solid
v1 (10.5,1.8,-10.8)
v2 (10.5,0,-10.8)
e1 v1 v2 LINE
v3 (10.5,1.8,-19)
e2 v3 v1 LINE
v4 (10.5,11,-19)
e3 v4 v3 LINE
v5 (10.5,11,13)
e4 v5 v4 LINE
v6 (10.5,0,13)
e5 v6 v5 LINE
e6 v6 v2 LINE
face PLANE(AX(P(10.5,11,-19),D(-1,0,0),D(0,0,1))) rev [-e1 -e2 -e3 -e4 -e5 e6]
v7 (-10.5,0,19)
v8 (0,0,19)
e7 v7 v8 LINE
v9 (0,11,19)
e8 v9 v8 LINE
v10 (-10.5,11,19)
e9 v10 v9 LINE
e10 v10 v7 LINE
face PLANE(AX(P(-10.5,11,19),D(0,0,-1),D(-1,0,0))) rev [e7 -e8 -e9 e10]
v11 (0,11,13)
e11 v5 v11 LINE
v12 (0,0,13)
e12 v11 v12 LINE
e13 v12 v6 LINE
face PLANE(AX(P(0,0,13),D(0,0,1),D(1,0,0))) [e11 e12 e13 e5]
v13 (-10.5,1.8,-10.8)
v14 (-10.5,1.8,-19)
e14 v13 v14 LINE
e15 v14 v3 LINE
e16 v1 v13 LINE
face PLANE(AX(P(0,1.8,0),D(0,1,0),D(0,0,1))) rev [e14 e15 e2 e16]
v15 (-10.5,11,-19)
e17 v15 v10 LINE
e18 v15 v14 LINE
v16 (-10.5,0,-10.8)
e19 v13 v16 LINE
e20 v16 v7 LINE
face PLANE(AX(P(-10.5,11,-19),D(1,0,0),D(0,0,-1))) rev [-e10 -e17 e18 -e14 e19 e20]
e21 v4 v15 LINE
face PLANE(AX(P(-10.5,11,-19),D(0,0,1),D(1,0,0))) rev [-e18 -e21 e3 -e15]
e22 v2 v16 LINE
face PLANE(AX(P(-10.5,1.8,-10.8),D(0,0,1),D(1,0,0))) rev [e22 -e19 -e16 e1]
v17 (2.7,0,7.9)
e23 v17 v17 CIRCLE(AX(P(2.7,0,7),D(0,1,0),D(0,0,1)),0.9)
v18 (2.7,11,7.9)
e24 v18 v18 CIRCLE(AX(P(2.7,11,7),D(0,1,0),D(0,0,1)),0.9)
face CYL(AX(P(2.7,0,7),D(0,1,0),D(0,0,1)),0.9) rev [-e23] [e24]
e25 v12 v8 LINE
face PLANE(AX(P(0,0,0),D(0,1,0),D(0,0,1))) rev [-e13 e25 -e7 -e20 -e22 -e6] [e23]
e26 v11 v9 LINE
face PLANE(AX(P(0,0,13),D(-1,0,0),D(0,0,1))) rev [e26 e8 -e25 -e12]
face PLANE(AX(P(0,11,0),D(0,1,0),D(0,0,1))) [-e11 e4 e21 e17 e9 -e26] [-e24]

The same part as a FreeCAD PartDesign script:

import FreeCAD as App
import Part
import Sketcher

V = App.Vector
Q = App.Units.Quantity


def add_polygon(sketch, points):
    """Adds a closed chain of lines whose ends are joined by coincident constraints."""
    first, n = sketch.GeometryCount, len(points)
    for a, b in zip(points, points[1:] + points[:1]):
        sketch.addGeometry(Part.LineSegment(App.Vector(*a, 0), App.Vector(*b, 0)), False)
    for i in range(n):
        sketch.addConstraint(Sketcher.Constraint("Coincident", first + i, 2, first + (i + 1) % n, 1))

doc = App.newDocument("Part")
params = doc.addObject("Spreadsheet::Sheet", "Params")
for row, (alias, value) in enumerate([
    ("sketch1_width", "21 mm"),
    ("sketch1_height", "38 mm"),
    ("pad1_length", "11 mm"),
    ("sketch2_width", "21 mm"),
    ("sketch2_height", "8.2 mm"),
    ("pocket1_length", "1.8 mm"),
    ("sketch3_height", "11 mm"),
    ("sketch3_width", "10.5 mm"),
    ("pocket2_length", "6 mm"),
    ("sketch4_diameter", "1.8 mm"),
], start=1):
    params.set(f"A{row}", alias)
    params.set(f"B{row}", "=" + value)
    params.setAlias(f"B{row}", alias)

body = doc.addObject("PartDesign::Body", "Body")

sketch1 = body.newObject("Sketcher::SketchObject", "Sketch")
sketch1.AttachmentSupport = (doc.getObject("XZ_Plane"), [""])
sketch1.MapMode = "FlatFace"
add_polygon(sketch1, [(-10, -19), (-10, 19), (10, 19), (10, -19)])
sketch1.addConstraint([
    Sketcher.Constraint("Vertical", 0),
    Sketcher.Constraint("Horizontal", 1),
    Sketcher.Constraint("Vertical", 2),
    Sketcher.Constraint("Horizontal", 3),
    Sketcher.Constraint("Symmetric", 0, 2, 2, 2, -1, 1),
    Sketcher.Constraint("DistanceX", 1, 1, 1, 2, Q("21 mm")),
    Sketcher.Constraint("DistanceY", 0, 1, 0, 2, Q("38 mm")),
])
sketch1.setExpression("Constraints[9]", "Params.sketch1_width")
sketch1.setExpression("Constraints[10]", "Params.sketch1_height")
pad1 = body.newObject("PartDesign::Pad", "Pad")
pad1.Profile = sketch1
pad1.setExpression("Length", "Params.pad1_length")
pad1.Reversed = True

sketch2 = body.newObject("Sketcher::SketchObject", "Sketch001")
sketch2.AttachmentSupport = (doc.getObject("XZ_Plane"), [""])
sketch2.MapMode = "FlatFace"
add_polygon(sketch2, [(-10, -11), (-10, -19), (10, -19), (10, -11)])
sketch2.addConstraint([
    Sketcher.Constraint("Vertical", 0),
    Sketcher.Constraint("Horizontal", 1),
    Sketcher.Constraint("Vertical", 2),
    Sketcher.Constraint("Horizontal", 3),
    Sketcher.Constraint("DistanceX", 1, 1, 1, 2, Q("21 mm")),
    Sketcher.Constraint("DistanceY", 0, 2, 0, 1, Q("8.2 mm")),
    Sketcher.Constraint("DistanceY", 0, 2, -1, 1, Q("19 mm")),
    Sketcher.Constraint("DistanceX", 0, 2, -1, 1, Q("10.5 mm")),
])
sketch2.setExpression("Constraints[8]", "Params.sketch2_width")
sketch2.setExpression("Constraints[9]", "Params.sketch2_height")
pocket1 = body.newObject("PartDesign::Pocket", "Pocket")
pocket1.Profile = sketch2
pocket1.setExpression("Length", "Params.pocket1_length")

sketch3 = body.newObject("Sketcher::SketchObject", "Sketch002")
sketch3.AttachmentSupport = (doc.getObject("XY_Plane"), [""])
sketch3.MapMode = "FlatFace"
sketch3.AttachmentOffset = App.Placement(V(0, 0, 19), App.Rotation())
add_polygon(sketch3, [(0, 11), (0, 0), (10, 0), (10, 11)])
sketch3.addConstraint([
    Sketcher.Constraint("Vertical", 0),
    Sketcher.Constraint("Horizontal", 1),
    Sketcher.Constraint("Vertical", 2),
    Sketcher.Constraint("Horizontal", 3),
    Sketcher.Constraint("Coincident", 0, 2, -1, 1),
    Sketcher.Constraint("DistanceY", 0, 2, 0, 1, Q("11 mm")),
    Sketcher.Constraint("DistanceX", 1, 1, 1, 2, Q("10.5 mm")),
])
sketch3.setExpression("Constraints[9]", "Params.sketch3_height")
sketch3.setExpression("Constraints[10]", "Params.sketch3_width")
pocket2 = body.newObject("PartDesign::Pocket", "Pocket001")
pocket2.Profile = sketch3
pocket2.setExpression("Length", "Params.pocket2_length")

sketch4 = body.newObject("Sketcher::SketchObject", "Sketch003")
sketch4.AttachmentSupport = (doc.getObject("XZ_Plane"), [""])
sketch4.MapMode = "FlatFace"
sketch4.AttachmentOffset = App.Placement(V(0, 0, -11), App.Rotation())
sketch4.addGeometry(Part.Circle(V(2.7, 7, 0), V(0, 0, 1), 0.9), False)
sketch4.addConstraint([
    Sketcher.Constraint("Diameter", 0, Q("1.8 mm")),
    Sketcher.Constraint("DistanceY", -1, 1, 0, 3, Q("7 mm")),
    Sketcher.Constraint("DistanceX", -1, 1, 0, 3, Q("2.7 mm")),
])
sketch4.setExpression("Constraints[0]", "Params.sketch4_diameter")
pocket3 = body.newObject("PartDesign::Pocket", "Pocket002")
pocket3.Profile = sketch4
pocket3.Type = "ThroughAll"
pocket3.Reversed = True

doc.recompute()
